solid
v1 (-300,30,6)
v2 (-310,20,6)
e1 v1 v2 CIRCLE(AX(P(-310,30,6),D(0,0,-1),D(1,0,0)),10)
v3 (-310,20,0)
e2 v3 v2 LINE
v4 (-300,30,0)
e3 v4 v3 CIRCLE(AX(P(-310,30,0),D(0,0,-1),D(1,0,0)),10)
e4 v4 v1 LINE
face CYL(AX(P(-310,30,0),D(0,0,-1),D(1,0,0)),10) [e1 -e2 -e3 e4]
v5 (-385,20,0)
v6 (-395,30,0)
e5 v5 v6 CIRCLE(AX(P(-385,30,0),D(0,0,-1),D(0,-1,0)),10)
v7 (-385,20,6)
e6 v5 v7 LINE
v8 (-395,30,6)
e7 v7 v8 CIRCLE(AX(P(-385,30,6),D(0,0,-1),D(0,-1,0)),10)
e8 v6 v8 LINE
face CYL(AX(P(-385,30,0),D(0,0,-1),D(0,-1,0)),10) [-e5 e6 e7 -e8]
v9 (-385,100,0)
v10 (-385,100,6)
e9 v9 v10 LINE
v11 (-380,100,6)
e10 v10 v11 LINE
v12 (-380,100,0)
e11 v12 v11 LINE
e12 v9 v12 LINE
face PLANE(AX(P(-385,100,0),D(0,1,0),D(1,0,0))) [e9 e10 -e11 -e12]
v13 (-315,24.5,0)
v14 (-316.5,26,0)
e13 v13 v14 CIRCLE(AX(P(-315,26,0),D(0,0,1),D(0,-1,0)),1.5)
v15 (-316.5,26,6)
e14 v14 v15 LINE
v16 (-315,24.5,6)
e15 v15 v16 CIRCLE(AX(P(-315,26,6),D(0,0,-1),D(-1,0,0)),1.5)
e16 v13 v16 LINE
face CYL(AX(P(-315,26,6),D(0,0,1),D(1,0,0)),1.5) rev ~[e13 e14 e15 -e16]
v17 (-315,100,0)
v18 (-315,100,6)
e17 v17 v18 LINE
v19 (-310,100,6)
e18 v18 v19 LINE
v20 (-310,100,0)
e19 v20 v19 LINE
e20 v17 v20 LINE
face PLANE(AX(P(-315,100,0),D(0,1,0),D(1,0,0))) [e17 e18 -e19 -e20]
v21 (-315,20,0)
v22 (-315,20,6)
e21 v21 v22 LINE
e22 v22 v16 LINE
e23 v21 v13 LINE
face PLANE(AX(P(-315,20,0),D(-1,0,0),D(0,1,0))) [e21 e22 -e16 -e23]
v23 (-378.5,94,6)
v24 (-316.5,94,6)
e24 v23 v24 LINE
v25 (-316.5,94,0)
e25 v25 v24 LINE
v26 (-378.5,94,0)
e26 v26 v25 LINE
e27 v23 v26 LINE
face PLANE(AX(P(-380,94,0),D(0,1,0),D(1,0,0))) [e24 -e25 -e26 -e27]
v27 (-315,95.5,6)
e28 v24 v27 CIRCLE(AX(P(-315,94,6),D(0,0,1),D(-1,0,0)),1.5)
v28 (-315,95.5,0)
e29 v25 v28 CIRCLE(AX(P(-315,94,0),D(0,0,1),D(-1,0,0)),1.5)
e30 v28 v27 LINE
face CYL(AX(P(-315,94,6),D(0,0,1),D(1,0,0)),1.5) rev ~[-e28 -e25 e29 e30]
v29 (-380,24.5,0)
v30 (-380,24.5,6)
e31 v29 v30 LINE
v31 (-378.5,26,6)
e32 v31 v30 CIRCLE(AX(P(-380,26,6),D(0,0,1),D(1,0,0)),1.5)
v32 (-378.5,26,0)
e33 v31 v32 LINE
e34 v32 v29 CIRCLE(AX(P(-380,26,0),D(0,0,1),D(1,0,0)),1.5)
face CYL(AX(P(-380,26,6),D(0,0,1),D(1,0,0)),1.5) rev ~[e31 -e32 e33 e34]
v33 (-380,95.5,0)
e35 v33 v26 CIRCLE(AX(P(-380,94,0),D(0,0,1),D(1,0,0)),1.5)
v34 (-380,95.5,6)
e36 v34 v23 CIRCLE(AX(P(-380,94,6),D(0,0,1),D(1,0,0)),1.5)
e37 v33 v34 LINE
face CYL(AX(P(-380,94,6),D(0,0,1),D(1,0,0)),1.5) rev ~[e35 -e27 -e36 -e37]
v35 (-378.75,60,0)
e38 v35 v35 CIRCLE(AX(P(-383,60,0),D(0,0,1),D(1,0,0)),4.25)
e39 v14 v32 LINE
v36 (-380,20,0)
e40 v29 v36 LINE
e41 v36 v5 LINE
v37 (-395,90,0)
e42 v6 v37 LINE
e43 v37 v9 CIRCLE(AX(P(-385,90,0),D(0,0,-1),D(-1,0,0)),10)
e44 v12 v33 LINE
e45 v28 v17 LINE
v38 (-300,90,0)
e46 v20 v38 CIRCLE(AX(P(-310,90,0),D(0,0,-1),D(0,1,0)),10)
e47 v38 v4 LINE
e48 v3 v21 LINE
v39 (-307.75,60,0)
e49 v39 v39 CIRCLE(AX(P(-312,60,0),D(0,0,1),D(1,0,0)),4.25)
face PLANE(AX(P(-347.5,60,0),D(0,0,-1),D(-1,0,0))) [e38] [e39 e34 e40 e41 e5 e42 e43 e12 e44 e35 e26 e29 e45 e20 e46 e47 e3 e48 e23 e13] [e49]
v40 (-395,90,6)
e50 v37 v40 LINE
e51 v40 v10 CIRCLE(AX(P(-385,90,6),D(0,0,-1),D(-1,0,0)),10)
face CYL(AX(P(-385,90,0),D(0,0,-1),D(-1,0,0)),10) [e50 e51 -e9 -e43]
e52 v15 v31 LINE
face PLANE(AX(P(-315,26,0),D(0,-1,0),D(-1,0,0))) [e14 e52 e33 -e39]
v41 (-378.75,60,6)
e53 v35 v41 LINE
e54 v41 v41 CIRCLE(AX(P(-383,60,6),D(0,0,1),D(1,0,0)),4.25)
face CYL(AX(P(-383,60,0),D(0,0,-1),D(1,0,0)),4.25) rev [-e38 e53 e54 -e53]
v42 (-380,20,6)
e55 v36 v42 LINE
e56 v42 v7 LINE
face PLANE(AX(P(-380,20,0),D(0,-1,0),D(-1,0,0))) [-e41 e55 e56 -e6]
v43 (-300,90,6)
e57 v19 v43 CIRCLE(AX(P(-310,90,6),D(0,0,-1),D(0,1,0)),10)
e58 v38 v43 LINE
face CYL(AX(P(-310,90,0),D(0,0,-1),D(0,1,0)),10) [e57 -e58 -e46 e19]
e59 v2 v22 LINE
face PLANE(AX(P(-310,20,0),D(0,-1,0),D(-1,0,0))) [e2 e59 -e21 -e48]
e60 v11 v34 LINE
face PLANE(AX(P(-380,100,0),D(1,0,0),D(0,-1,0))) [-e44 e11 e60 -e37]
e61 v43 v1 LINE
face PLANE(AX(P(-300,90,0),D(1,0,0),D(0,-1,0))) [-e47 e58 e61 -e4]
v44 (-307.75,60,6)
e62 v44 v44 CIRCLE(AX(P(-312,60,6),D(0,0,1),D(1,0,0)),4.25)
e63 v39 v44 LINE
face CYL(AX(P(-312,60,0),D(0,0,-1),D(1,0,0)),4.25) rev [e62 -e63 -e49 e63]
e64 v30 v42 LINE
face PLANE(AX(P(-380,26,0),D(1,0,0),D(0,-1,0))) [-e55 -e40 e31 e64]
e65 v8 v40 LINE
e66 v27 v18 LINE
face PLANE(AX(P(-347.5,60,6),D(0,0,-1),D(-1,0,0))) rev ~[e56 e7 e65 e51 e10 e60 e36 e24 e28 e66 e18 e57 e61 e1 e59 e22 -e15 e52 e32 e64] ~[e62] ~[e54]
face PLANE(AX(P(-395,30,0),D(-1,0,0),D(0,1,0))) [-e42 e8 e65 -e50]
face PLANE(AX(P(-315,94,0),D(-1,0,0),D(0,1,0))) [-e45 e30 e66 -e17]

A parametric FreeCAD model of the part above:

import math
import FreeCAD as App
import Part
import Sketcher
from FreeCAD import Vector
Q = App.Units.Quantity

doc = App.newDocument("Part")
body = doc.addObject("PartDesign::Body", "Body")

# Sketch on XY plane
sketch1 = body.newObject("Sketcher::SketchObject", "Sketch")
sketch1.AttachmentSupport = (doc.getObject("XY_Plane"), [""])
sketch1.MapMode = "FlatFace"
sketch1.addGeometry([
    Part.LineSegment(Vector(-315, 94, 0), Vector(-380, 94, 0)),  # 0
    Part.LineSegment(Vector(-380, 94, 0), Vector(-380, 100, 0)),  # 1
    Part.LineSegment(Vector(-380, 100, 0), Vector(-385, 100, 0)),  # 2
    Part.ArcOfCircle(Part.Circle(Vector(-385, 90, 0), Vector(0, 0, 1), 10), math.radians(90), math.radians(180)),  # 3
    Part.LineSegment(Vector(-395, 90, 0), Vector(-395, 30, 0)),  # 4
    Part.ArcOfCircle(Part.Circle(Vector(-385, 30, 0), Vector(0, 0, 1), 10), math.radians(180), math.radians(270)),  # 5
    Part.LineSegment(Vector(-385, 20, 0), Vector(-380, 20, 0)),  # 6
    Part.LineSegment(Vector(-380, 20, 0), Vector(-380, 26, 0)),  # 7
    Part.LineSegment(Vector(-380, 26, 0), Vector(-315, 26, 0)),  # 8
    Part.LineSegment(Vector(-315, 26, 0), Vector(-315, 20, 0)),  # 9
    Part.LineSegment(Vector(-315, 20, 0), Vector(-310, 20, 0)),  # 10
    Part.ArcOfCircle(Part.Circle(Vector(-310, 30, 0), Vector(0, 0, 1), 10), math.radians(-90), math.radians(0)),  # 11
    Part.LineSegment(Vector(-300, 30, 0), Vector(-300, 90, 0)),  # 12
    Part.ArcOfCircle(Part.Circle(Vector(-310, 90, 0), Vector(0, 0, 1), 10), math.radians(0), math.radians(90)),  # 13
    Part.LineSegment(Vector(-310, 100, 0), Vector(-315, 100, 0)),  # 14
    Part.LineSegment(Vector(-315, 100, 0), Vector(-315, 94, 0)),  # 15
    Part.Circle(Vector(-312, 60, 0), Vector(0, 0, 1), 4.2),  # 16
    Part.Circle(Vector(-383, 60, 0), Vector(0, 0, 1), 4.2),  # 17
], False)
sketch1.addConstraint([
    Sketcher.Constraint("Coincident", 0, 2, 1, 1),
    Sketcher.Constraint("Coincident", 1, 2, 2, 1),
    Sketcher.Constraint("Tangent", 2, 2, 3, 1),
    Sketcher.Constraint("Tangent", 3, 2, 4, 1),
    Sketcher.Constraint("Tangent", 4, 2, 5, 1),
    Sketcher.Constraint("Tangent", 5, 2, 6, 1),
    Sketcher.Constraint("Coincident", 6, 2, 7, 1),
    Sketcher.Constraint("Coincident", 7, 2, 8, 1),
    Sketcher.Constraint("Coincident", 8, 2, 9, 1),
    Sketcher.Constraint("Coincident", 9, 2, 10, 1),
    Sketcher.Constraint("Tangent", 10, 2, 11, 1),
    Sketcher.Constraint("Tangent", 11, 2, 12, 1),
    Sketcher.Constraint("Tangent", 12, 2, 13, 1),
    Sketcher.Constraint("Tangent", 13, 2, 14, 1),
    Sketcher.Constraint("Coincident", 14, 2, 15, 1),
    Sketcher.Constraint("Coincident", 15, 2, 0, 1),
    Sketcher.Constraint("Horizontal", 0),
    Sketcher.Constraint("Vertical", 1),
    Sketcher.Constraint("Horizontal", 2),
    Sketcher.Constraint("Vertical", 4),
    Sketcher.Constraint("Horizontal", 6),
    Sketcher.Constraint("Vertical", 7),
    Sketcher.Constraint("Horizontal", 8),
    Sketcher.Constraint("Vertical", 9),
    Sketcher.Constraint("Horizontal", 10),
    Sketcher.Constraint("Vertical", 12),
    Sketcher.Constraint("Horizontal", 14),
    Sketcher.Constraint("Vertical", 15),
    Sketcher.Constraint("Equal", 3, 5),
    Sketcher.Constraint("Equal", 5, 11),
    Sketcher.Constraint("Equal", 11, 13),
    Sketcher.Constraint("Equal", 16, 17),
    Sketcher.Constraint("Horizontal", 5, 3, 11, 3),
    Sketcher.Constraint("Horizontal", 3, 3, 13, 3),
    Sketcher.Constraint("Horizontal", 16, 3, 17, 3),
    Sketcher.Constraint("Vertical", 1, 2, 6, 2),
    Sketcher.Constraint("Vertical", 9, 2, 14, 2),
    Sketcher.Constraint("Equal", 6, 10),
    Sketcher.Constraint("Equal", 1, 7),
    Sketcher.Constraint("Radius", 3, Q("10 mm")),
    Sketcher.Constraint("Diameter", 16, Q("8.5 mm")),
    Sketcher.Constraint("DistanceX", 0, 2, 0, 1, Q("65 mm")),
    Sketcher.Constraint("DistanceX", 2, 2, 2, 1, Q("5 mm")),
    Sketcher.Constraint("DistanceY", 1, 1, 1, 2, Q("6 mm")),
    Sketcher.Constraint("DistanceY", 4, 2, 4, 1, Q("60 mm")),
    Sketcher.Constraint("DistanceX", 3, 3, -1, 1, Q("385 mm")),
    Sketcher.Constraint("DistanceY", -1, 1, 3, 3, Q("90 mm")),
    Sketcher.Constraint("DistanceX", 16, 3, -1, 1, Q("312 mm")),
    Sketcher.Constraint("DistanceY", -1, 1, 16, 3, Q("60 mm")),
    Sketcher.Constraint("DistanceX", 17, 3, -1, 1, Q("383 mm")),
])
pad1 = body.newObject("PartDesign::Pad", "Pad")
pad1.Profile = sketch1
pad1.Length = 6

# Sketch on XY plane
sketch2 = body.newObject("Sketcher::SketchObject", "Sketch001")
sketch2.AttachmentSupport = (doc.getObject("XY_Plane"), [""])
sketch2.MapMode = "FlatFace"
sketch2.AttachmentOffset = App.Placement(Vector(0, 0, 6), App.Rotation())
sketch2.addGeometry([
    Part.Circle(Vector(-380, 26, 0), Vector(0, 0, 1), 1.5),
    Part.Circle(Vector(-315, 26, 0), Vector(0, 0, 1), 1.5),
    Part.Circle(Vector(-380, 94, 0), Vector(0, 0, 1), 1.5),
    Part.Circle(Vector(-315, 94, 0), Vector(0, 0, 1), 1.5),
], False)
sketch2.addConstraint([
    Sketcher.Constraint("Equal", 0, 1),
    Sketcher.Constraint("Equal", 1, 2),
    Sketcher.Constraint("Equal", 2, 3),
    Sketcher.Constraint("Horizontal", 0, 3, 1, 3),
    Sketcher.Constraint("Horizontal", 2, 3, 3, 3),
    Sketcher.Constraint("Vertical", 0, 3, 2, 3),
    Sketcher.Constraint("Vertical", 1, 3, 3, 3),
    Sketcher.Constraint("Diameter", 0, Q("3 mm")),
    Sketcher.Constraint("DistanceX", 0, 3, -1, 1, Q("380 mm")),
    Sketcher.Constraint("DistanceY", -1, 1, 0, 3, Q("26 mm")),
    Sketcher.Constraint("DistanceX", 1, 3, -1, 1, Q("315 mm")),
    Sketcher.Constraint("DistanceY", -1, 1, 2, 3, Q("94 mm")),
])
pocket1 = body.newObject("PartDesign::Pocket", "Pocket")
pocket1.Profile = sketch2
pocket1.Type = "ThroughAll"

doc.recompute()
